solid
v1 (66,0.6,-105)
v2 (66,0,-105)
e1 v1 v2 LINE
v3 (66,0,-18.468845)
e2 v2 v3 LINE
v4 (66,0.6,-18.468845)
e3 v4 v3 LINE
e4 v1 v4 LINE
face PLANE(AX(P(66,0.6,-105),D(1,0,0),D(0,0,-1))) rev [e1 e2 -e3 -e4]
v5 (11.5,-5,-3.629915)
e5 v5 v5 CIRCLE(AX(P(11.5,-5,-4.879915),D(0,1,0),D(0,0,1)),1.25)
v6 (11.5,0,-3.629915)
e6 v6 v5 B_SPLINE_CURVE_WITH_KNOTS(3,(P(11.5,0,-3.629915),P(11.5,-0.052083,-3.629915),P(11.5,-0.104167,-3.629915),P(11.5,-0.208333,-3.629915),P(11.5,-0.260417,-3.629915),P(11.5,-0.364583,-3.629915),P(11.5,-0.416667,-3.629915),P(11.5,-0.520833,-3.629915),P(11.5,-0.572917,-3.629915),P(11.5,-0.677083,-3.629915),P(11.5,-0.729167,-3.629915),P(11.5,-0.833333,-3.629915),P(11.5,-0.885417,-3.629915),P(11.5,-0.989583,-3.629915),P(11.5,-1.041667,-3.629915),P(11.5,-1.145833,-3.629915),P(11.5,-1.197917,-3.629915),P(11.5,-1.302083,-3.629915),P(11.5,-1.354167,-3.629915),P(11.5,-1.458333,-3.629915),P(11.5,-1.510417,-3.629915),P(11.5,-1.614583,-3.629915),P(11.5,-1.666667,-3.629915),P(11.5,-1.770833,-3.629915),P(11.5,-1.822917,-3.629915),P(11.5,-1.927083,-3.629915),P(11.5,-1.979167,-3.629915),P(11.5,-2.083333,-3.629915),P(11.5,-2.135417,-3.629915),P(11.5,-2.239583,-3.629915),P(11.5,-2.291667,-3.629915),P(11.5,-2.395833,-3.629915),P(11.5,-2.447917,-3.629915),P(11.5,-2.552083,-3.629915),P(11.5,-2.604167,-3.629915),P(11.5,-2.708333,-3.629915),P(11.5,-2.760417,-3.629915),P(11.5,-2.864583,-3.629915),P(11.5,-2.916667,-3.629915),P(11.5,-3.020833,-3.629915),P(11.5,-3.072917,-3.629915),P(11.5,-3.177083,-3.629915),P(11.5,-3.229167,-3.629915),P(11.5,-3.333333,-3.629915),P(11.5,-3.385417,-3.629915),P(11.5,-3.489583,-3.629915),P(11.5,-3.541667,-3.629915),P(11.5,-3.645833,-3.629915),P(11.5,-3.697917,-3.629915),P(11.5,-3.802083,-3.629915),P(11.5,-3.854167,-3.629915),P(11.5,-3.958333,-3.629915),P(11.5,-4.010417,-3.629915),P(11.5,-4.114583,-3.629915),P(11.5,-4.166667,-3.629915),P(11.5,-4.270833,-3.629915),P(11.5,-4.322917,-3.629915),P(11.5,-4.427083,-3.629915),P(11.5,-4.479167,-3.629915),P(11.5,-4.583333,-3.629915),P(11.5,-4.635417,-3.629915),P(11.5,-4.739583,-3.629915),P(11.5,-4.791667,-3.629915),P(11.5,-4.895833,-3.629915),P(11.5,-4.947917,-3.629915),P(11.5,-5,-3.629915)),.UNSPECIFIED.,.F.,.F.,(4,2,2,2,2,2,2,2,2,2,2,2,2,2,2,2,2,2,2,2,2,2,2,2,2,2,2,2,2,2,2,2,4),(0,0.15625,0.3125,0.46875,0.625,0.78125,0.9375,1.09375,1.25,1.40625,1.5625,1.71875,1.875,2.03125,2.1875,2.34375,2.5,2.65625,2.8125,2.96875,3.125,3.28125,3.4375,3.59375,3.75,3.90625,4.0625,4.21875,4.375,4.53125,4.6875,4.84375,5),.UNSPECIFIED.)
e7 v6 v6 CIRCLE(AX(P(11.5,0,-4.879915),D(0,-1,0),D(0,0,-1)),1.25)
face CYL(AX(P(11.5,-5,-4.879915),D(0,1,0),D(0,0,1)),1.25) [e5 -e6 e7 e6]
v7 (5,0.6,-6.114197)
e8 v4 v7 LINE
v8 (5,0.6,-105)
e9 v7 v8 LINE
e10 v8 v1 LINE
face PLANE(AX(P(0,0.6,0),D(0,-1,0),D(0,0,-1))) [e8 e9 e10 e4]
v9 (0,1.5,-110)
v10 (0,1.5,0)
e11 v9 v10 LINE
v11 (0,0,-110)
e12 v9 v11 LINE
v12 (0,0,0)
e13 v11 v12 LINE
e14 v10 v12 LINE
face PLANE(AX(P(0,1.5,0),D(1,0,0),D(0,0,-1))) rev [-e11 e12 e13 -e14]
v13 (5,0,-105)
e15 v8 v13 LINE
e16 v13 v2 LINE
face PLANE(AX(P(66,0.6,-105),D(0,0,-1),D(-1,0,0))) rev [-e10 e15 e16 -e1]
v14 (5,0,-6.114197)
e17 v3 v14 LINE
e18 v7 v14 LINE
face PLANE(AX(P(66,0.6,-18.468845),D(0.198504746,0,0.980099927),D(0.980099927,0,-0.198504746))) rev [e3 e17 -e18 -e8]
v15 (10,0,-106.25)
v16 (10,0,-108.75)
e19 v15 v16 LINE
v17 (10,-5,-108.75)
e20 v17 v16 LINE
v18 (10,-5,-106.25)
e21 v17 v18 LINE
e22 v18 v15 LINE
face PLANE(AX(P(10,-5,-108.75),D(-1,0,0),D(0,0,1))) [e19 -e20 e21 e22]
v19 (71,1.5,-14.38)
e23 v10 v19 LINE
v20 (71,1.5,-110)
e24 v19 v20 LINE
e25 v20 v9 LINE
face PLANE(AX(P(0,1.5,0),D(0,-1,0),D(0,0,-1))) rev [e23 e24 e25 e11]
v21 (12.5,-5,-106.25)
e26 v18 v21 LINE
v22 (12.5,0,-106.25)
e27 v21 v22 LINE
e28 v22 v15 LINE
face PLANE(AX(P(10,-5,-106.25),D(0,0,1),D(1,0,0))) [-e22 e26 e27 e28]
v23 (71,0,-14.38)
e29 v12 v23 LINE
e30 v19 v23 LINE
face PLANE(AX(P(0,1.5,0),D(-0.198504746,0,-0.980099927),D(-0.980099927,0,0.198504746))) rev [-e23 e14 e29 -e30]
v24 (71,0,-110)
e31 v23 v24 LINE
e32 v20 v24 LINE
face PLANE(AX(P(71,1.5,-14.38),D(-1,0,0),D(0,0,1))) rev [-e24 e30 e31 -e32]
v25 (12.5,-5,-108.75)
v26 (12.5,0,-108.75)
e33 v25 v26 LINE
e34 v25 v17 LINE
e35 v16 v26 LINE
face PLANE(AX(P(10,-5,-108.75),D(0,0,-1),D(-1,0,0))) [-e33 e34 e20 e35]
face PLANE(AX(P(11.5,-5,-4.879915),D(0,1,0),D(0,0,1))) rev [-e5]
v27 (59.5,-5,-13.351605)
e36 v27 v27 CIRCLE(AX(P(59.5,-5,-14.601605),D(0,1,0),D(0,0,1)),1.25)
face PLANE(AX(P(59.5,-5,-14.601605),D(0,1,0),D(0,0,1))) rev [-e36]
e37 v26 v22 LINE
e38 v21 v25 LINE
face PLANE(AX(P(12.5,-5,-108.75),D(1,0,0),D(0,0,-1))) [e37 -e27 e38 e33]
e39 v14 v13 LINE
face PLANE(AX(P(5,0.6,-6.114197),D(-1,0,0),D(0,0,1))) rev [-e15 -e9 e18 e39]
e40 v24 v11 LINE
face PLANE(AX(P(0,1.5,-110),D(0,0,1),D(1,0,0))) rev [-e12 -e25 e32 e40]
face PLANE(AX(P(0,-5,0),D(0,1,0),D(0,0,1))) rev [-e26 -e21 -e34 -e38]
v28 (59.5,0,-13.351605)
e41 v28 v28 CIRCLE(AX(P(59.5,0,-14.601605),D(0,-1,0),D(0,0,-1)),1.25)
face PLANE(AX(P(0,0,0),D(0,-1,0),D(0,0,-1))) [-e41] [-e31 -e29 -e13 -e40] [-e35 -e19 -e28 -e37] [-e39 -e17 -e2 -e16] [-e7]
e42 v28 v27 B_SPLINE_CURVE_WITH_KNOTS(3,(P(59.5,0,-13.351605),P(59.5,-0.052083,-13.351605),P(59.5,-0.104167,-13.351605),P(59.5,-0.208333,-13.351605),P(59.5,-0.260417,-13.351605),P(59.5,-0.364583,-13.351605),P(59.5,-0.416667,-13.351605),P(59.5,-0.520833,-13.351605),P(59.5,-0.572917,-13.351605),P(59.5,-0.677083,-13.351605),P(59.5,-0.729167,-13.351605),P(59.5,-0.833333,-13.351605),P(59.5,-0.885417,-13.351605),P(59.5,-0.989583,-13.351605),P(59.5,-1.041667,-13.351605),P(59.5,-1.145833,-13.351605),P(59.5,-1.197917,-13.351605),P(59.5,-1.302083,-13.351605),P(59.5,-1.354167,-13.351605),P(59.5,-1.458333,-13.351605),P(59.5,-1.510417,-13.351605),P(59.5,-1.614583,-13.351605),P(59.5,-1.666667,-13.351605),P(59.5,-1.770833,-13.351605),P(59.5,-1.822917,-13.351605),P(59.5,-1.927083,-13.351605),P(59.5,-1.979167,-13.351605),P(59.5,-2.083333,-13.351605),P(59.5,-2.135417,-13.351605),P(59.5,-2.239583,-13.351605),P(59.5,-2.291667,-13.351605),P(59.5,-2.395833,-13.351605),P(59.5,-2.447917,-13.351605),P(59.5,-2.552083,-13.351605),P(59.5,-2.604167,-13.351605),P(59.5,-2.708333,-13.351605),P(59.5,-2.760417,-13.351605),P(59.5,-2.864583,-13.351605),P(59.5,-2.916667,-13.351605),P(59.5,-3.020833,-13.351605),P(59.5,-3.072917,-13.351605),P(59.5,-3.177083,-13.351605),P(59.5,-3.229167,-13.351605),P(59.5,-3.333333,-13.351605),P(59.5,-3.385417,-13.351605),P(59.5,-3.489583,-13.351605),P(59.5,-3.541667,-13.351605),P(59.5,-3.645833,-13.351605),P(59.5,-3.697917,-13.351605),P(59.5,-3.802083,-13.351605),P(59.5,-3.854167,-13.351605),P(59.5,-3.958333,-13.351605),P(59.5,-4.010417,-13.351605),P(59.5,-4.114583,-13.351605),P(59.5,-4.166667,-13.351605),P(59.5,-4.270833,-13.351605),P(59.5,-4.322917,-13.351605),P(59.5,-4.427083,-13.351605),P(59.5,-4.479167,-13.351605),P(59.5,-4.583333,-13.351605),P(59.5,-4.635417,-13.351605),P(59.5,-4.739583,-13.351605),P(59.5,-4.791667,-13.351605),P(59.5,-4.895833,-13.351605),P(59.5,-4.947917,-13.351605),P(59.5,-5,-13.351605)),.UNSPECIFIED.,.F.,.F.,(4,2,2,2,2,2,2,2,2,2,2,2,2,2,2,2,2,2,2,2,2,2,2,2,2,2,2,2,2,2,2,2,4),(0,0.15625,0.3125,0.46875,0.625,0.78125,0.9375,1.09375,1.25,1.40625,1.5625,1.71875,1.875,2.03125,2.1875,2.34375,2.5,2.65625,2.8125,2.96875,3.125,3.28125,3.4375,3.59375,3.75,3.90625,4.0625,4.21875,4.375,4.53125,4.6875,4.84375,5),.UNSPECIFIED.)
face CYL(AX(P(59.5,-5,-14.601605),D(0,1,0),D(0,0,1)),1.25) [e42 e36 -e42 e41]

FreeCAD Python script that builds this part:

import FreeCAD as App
import Part
import Sketcher
from FreeCAD import Vector

doc = App.newDocument("Part")
body = doc.addObject("PartDesign::Body", "Body")

# Sketch on XZ plane
sketch1 = body.newObject("Sketcher::SketchObject", "Sketch")
sketch1.AttachmentSupport = (doc.getObject("XZ_Plane"), [""])
sketch1.MapMode = "FlatFace"
sketch1.addGeometry(Part.LineSegment(Vector(0, 0, 0), Vector(71, -14, 0)), False)
sketch1.addGeometry(Part.LineSegment(Vector(71, -14, 0), Vector(71, -110, 0)), False)
sketch1.addGeometry(Part.LineSegment(Vector(71, -110, 0), Vector(0, -110, 0)), False)
sketch1.addGeometry(Part.LineSegment(Vector(0, -110, 0), Vector(0, 0, 0)), False)
sketch1.addConstraint(Sketcher.Constraint("Coincident", 0, 2, 1, 1))
sketch1.addConstraint(Sketcher.Constraint("Coincident", 1, 2, 2, 1))
sketch1.addConstraint(Sketcher.Constraint("Coincident", 2, 2, 3, 1))
sketch1.addConstraint(Sketcher.Constraint("Coincident", 3, 2, 0, 1))
sketch1.addConstraint(Sketcher.Constraint("Vertical", 1))
sketch1.addConstraint(Sketcher.Constraint("Horizontal", 2))
sketch1.addConstraint(Sketcher.Constraint("Vertical", 3))
sketch1.addConstraint(Sketcher.Constraint("Coincident", 3, 2, -1, 1))
sketch1.addConstraint(Sketcher.Constraint("DistanceX", 2, 2, 2, 1, 71.0))
sketch1.addConstraint(Sketcher.Constraint("DistanceY", 3, 1, 3, 2, 110.0))
sketch1.addConstraint(Sketcher.Constraint("DistanceY", 1, 2, 1, 1, 95.62))
pad1 = body.newObject("PartDesign::Pad", "Pad")
pad1.Profile = sketch1
pad1.Length = 1.5
pad1.Reversed = True

# Sketch on XZ plane
sketch2 = body.newObject("Sketcher::SketchObject", "Sketch001")
sketch2.AttachmentSupport = (doc.getObject("XZ_Plane"), [""])
sketch2.MapMode = "FlatFace"
sketch2.AttachmentOffset = App.Placement(Vector(0, 0, -1.5), App.Rotation())
sketch2.addGeometry(Part.Circle(Vector(11.5, -4.9, 0), Vector(0, 0, 1), 1.2), False)
sketch2.addGeometry(Part.Circle(Vector(59.5, -14.6, 0), Vector(0, 0, 1), 1.2), False)
sketch2.addGeometry(Part.LineSegment(Vector(10, -108.8, 0), Vector(10, -106.2, 0)), False)
sketch2.addGeometry(Part.LineSegment(Vector(10, -106.2, 0), Vector(12.5, -106.2, 0)), False)
sketch2.addGeometry(Part.LineSegment(Vector(12.5, -106.2, 0), Vector(12.5, -108.8, 0)), False)
sketch2.addGeometry(Part.LineSegment(Vector(12.5, -108.8, 0), Vector(10, -108.8, 0)), False)
sketch2.addConstraint(Sketcher.Constraint("Coincident", 2, 2, 3, 1))
sketch2.addConstraint(Sketcher.Constraint("Coincident", 3, 2, 4, 1))
sketch2.addConstraint(Sketcher.Constraint("Coincident", 4, 2, 5, 1))
sketch2.addConstraint(Sketcher.Constraint("Coincident", 5, 2, 2, 1))
sketch2.addConstraint(Sketcher.Constraint("Vertical", 2))
sketch2.addConstraint(Sketcher.Constraint("Horizontal", 3))
sketch2.addConstraint(Sketcher.Constraint("Vertical", 4))
sketch2.addConstraint(Sketcher.Constraint("Horizontal", 5))
sketch2.addConstraint(Sketcher.Constraint("Equal", 0, 1))
sketch2.addConstraint(Sketcher.Constraint("Equal", 5, 2))
sketch2.addConstraint(Sketcher.Constraint("Diameter", 0, 2.5))
sketch2.addConstraint(Sketcher.Constraint("DistanceX", 3, 1, 3, 2, 2.5))
sketch2.addConstraint(Sketcher.Constraint("DistanceX", -1, 1, 2, 2, 10.0))
sketch2.addConstraint(Sketcher.Constraint("DistanceX", 0, 3, 1, 3, 48.0))
sketch2.addConstraint(Sketcher.Constraint("DistanceX", 0, 3, 3, 2, 1.0))
sketch2.addConstraint(Sketcher.Constraint("DistanceY", 2, 2, -1, 1, 106.25))
sketch2.addConstraint(Sketcher.Constraint("DistanceY", 1, 3, 0, 3, 9.72169))
sketch2.addConstraint(Sketcher.Constraint("DistanceY", 0, 3, -1, 1, 4.879915))
pad2 = body.newObject("PartDesign::Pad", "Pad001")
pad2.Profile = sketch2
pad2.Length = 6.5

# Sketch on XZ plane
sketch3 = body.newObject("Sketcher::SketchObject", "Sketch002")
sketch3.AttachmentSupport = (doc.getObject("XZ_Plane"), [""])
sketch3.MapMode = "FlatFace"
sketch3.addGeometry(Part.LineSegment(Vector(66, -105, 0), Vector(66, -18, 0)), False)
sketch3.addGeometry(Part.LineSegment(Vector(66, -18, 0), Vector(5, -6, 0)), False)
sketch3.addGeometry(Part.LineSegment(Vector(5, -6, 0), Vector(5, -105, 0)), False)
sketch3.addGeometry(Part.LineSegment(Vector(5, -105, 0), Vector(66, -105, 0)), False)
sketch3.addConstraint(Sketcher.Constraint("Coincident", 0, 2, 1, 1))
sketch3.addConstraint(Sketcher.Constraint("Coincident", 1, 2, 2, 1))
sketch3.addConstraint(Sketcher.Constraint("Coincident", 2, 2, 3, 1))
sketch3.addConstraint(Sketcher.Constraint("Coincident", 3, 2, 0, 1))
sketch3.addConstraint(Sketcher.Constraint("Vertical", 0))
sketch3.addConstraint(Sketcher.Constraint("Vertical", 2))
sketch3.addConstraint(Sketcher.Constraint("Horizontal", 3))
sketch3.addConstraint(Sketcher.Constraint("DistanceX", 3, 1, 3, 2, 61.0))
sketch3.addConstraint(Sketcher.Constraint("DistanceX", -1, 1, 0, 2, 66.0))
sketch3.addConstraint(Sketcher.Constraint("DistanceY", 2, 2, -1, 1, 105.0))
sketch3.addConstraint(Sketcher.Constraint("Distance", 1, 62.238552))
sketch3.addConstraint(Sketcher.Constraint("DistanceY", 0, 1, 0, 2, 86.531155))
pocket1 = body.newObject("PartDesign::Pocket", "Pocket")
pocket1.Profile = sketch3
pocket1.Length = 0.6

doc.recompute()
